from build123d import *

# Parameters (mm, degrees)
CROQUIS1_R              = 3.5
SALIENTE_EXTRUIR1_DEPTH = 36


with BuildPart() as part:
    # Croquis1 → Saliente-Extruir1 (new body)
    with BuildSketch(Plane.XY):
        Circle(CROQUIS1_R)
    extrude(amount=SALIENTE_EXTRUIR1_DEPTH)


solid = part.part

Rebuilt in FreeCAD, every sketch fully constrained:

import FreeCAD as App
import Part
import Sketcher
Q = App.Units.Quantity

doc = App.newDocument("Part")
body = doc.addObject("PartDesign::Body", "Body")

# Sketch on XY plane
sketch1 = doc.addObject("Sketcher::SketchObject", "Sketch")
body.addObject(sketch1)
sketch1.AttachmentSupport = (doc.XY_Plane, [""])
sketch1.MapMode = "FlatFace"
sketch1.addGeometry(Part.Circle(App.Vector(0, 0, 0), App.Vector(0, 0, 1), 3.5), False)
sketch1.addConstraint([
    Sketcher.Constraint("Coincident", 0, 3, -1, 1),
    Sketcher.Constraint("Diameter", 0, Q("7 mm")),
])
pad1 = doc.addObject("PartDesign::Pad", "Pad")
body.addObject(pad1)
pad1.Profile = sketch1
pad1.Length = 36

doc.recompute()
